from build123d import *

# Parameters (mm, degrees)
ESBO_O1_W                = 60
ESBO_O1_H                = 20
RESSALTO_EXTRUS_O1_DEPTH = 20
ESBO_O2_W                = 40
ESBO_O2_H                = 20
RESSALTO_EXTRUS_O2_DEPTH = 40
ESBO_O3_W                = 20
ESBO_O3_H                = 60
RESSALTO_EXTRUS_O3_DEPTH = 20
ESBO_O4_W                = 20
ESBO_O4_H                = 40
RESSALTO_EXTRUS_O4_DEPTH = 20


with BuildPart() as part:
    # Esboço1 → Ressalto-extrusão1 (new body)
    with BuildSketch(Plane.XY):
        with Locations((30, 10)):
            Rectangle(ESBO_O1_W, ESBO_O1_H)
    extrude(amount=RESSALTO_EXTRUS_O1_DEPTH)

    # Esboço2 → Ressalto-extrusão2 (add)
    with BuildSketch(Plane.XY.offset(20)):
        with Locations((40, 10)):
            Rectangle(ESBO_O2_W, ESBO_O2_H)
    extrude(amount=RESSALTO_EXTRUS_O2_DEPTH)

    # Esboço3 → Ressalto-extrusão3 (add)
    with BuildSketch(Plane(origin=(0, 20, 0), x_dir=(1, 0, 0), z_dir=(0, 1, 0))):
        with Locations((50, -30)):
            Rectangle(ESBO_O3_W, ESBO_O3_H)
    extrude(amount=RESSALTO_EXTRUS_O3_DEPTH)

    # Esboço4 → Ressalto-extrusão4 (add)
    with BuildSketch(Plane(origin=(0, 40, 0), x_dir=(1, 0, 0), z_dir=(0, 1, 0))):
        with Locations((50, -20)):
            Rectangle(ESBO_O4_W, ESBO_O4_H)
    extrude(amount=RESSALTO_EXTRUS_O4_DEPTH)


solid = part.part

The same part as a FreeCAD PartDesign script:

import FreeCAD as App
import Part
import Sketcher
from FreeCAD import Vector


def add_polygon(sketch, points):
    """Adds a closed chain of lines whose ends are joined by coincident constraints."""
    first, n = sketch.GeometryCount, len(points)
    for a, b in zip(points, points[1:] + points[:1]):
        sketch.addGeometry(Part.LineSegment(App.Vector(*a, 0), App.Vector(*b, 0)), False)
    for i in range(n):
        sketch.addConstraint(Sketcher.Constraint("Coincident", first + i, 2, first + (i + 1) % n, 1))

doc = App.newDocument("Part")
body = doc.addObject("PartDesign::Body", "Body")

sketch1 = doc.addObject("Sketcher::SketchObject", "Sketch")
body.addObject(sketch1)
sketch1.AttachmentSupport = (doc.XY_Plane, [""])
sketch1.MapMode = "FlatFace"
add_polygon(sketch1, [(0, 20), (0, 0), (60, 0), (60, 20)])
sketch1.addConstraint(Sketcher.Constraint("Vertical", 0))
sketch1.addConstraint(Sketcher.Constraint("Horizontal", 1))
sketch1.addConstraint(Sketcher.Constraint("Vertical", 2))
sketch1.addConstraint(Sketcher.Constraint("Horizontal", 3))
sketch1.addConstraint(Sketcher.Constraint("Coincident", 0, 2, -1, 1))
sketch1.addConstraint(Sketcher.Constraint("DistanceX", 1, 1, 1, 2, 60.0))
sketch1.addConstraint(Sketcher.Constraint("DistanceY", 0, 2, 0, 1, 20.0))
pad1 = doc.addObject("PartDesign::Pad", "Pad")
body.addObject(pad1)
pad1.Profile = sketch1
pad1.Length = 20

sketch2 = doc.addObject("Sketcher::SketchObject", "Sketch001")
body.addObject(sketch2)
sketch2.AttachmentSupport = (doc.XY_Plane, [""])
sketch2.MapMode = "FlatFace"
sketch2.AttachmentOffset = App.Placement(Vector(0, 0, 20), App.Rotation())
add_polygon(sketch2, [(20, 20), (20, 0), (60, 0), (60, 20)])
sketch2.addConstraint(Sketcher.Constraint("Vertical", 0))
sketch2.addConstraint(Sketcher.Constraint("Horizontal", 1))
sketch2.addConstraint(Sketcher.Constraint("Vertical", 2))
sketch2.addConstraint(Sketcher.Constraint("Horizontal", 3))
sketch2.addConstraint(Sketcher.Constraint("PointOnObject", 0, 2, -1))
sketch2.addConstraint(Sketcher.Constraint("DistanceX", 1, 1, 1, 2, 40.0))
sketch2.addConstraint(Sketcher.Constraint("DistanceY", 0, 2, 0, 1, 20.0))
sketch2.addConstraint(Sketcher.Constraint("DistanceX", -1, 1, 0, 2, 20.0))
pad2 = doc.addObject("PartDesign::Pad", "Pad001")
body.addObject(pad2)
pad2.Profile = sketch2
pad2.Length = 40

sketch3 = doc.addObject("Sketcher::SketchObject", "Sketch002")
body.addObject(sketch3)
sketch3.AttachmentSupport = (doc.XZ_Plane, [""])
sketch3.MapMode = "FlatFace"
sketch3.AttachmentOffset = App.Placement(Vector(0, 0, -20), App.Rotation())
add_polygon(sketch3, [(40, 0), (40, 60), (60, 60), (60, 0)])
sketch3.addConstraint(Sketcher.Constraint("Vertical", 0))
sketch3.addConstraint(Sketcher.Constraint("Horizontal", 1))
sketch3.addConstraint(Sketcher.Constraint("Vertical", 2))
sketch3.addConstraint(Sketcher.Constraint("Horizontal", 3))
sketch3.addConstraint(Sketcher.Constraint("PointOnObject", 2, 2, -1))
sketch3.addConstraint(Sketcher.Constraint("DistanceX", 1, 1, 1, 2, 20.0))
sketch3.addConstraint(Sketcher.Constraint("DistanceY", 0, 1, 0, 2, 60.0))
sketch3.addConstraint(Sketcher.Constraint("DistanceX", -1, 1, 0, 2, 40.0))
pad3 = doc.addObject("PartDesign::Pad", "Pad002")
body.addObject(pad3)
pad3.Profile = sketch3
pad3.Length = 20
pad3.Reversed = True

sketch4 = doc.addObject("Sketcher::SketchObject", "Sketch003")
body.addObject(sketch4)
sketch4.AttachmentSupport = (doc.XZ_Plane, [""])
sketch4.MapMode = "FlatFace"
sketch4.AttachmentOffset = App.Placement(Vector(0, 0, -40), App.Rotation())
add_polygon(sketch4, [(40, 0), (40, 40), (60, 40), (60, 0)])
sketch4.addConstraint(Sketcher.Constraint("Vertical", 0))
sketch4.addConstraint(Sketcher.Constraint("Horizontal", 1))
sketch4.addConstraint(Sketcher.Constraint("Vertical", 2))
sketch4.addConstraint(Sketcher.Constraint("Horizontal", 3))
sketch4.addConstraint(Sketcher.Constraint("PointOnObject", 2, 2, -1))
sketch4.addConstraint(Sketcher.Constraint("DistanceX", 1, 1, 1, 2, 20.0))
sketch4.addConstraint(Sketcher.Constraint("DistanceY", 0, 1, 0, 2, 40.0))
sketch4.addConstraint(Sketcher.Constraint("DistanceX", -1, 1, 0, 2, 40.0))
pad4 = doc.addObject("PartDesign::Pad", "Pad003")
body.addObject(pad4)
pad4.Profile = sketch4
pad4.Length = 20
pad4.Reversed = True

doc.recompute()
